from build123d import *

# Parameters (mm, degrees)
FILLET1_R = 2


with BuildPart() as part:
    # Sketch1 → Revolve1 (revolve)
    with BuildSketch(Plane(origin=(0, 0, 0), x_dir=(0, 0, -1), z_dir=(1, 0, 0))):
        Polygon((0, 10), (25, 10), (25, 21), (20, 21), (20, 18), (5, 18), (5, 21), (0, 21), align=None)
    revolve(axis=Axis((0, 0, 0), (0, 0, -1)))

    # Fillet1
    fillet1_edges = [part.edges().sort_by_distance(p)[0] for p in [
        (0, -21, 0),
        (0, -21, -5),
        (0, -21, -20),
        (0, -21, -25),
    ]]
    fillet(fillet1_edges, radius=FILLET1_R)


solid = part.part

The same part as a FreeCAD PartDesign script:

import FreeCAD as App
import Part
import Sketcher

V = App.Vector
Q = App.Units.Quantity


def edges_at(feature, points):
    """Names of the edges that pass closest to the given points."""
    edges = feature.Shape.Edges
    near = lambda p: min(range(len(edges)), key=lambda i: edges[i].distToShape(Part.Vertex(*p))[0])
    return sorted({f"Edge{near(p) + 1}" for p in points})

doc = App.newDocument("Part")
body = doc.addObject("PartDesign::Body", "Body")

# Sketch on YZ plane
sketch1 = doc.addObject("Sketcher::SketchObject", "Sketch")
body.addObject(sketch1)
sketch1.AttachmentSupport = (doc.YZ_Plane, [""])
sketch1.MapMode = "FlatFace"
sketch1.addGeometry(Part.LineSegment(V(10, 0, 0), V(10, -25, 0)), False)
sketch1.addGeometry(Part.LineSegment(V(10, -25, 0), V(21, -25, 0)), False)
sketch1.addGeometry(Part.LineSegment(V(21, -25, 0), V(21, -20, 0)), False)
sketch1.addGeometry(Part.LineSegment(V(21, -20, 0), V(18, -20, 0)), False)
sketch1.addGeometry(Part.LineSegment(V(18, -20, 0), V(18, -5, 0)), False)
sketch1.addGeometry(Part.LineSegment(V(18, -5, 0), V(21, -5, 0)), False)
sketch1.addGeometry(Part.LineSegment(V(21, -5, 0), V(21, 0, 0)), False)
sketch1.addGeometry(Part.LineSegment(V(21, 0, 0), V(10, 0, 0)), False)
sketch1.addConstraint(Sketcher.Constraint("Coincident", 0, 2, 1, 1))
sketch1.addConstraint(Sketcher.Constraint("Coincident", 1, 2, 2, 1))
sketch1.addConstraint(Sketcher.Constraint("Coincident", 2, 2, 3, 1))
sketch1.addConstraint(Sketcher.Constraint("Coincident", 3, 2, 4, 1))
sketch1.addConstraint(Sketcher.Constraint("Coincident", 4, 2, 5, 1))
sketch1.addConstraint(Sketcher.Constraint("Coincident", 5, 2, 6, 1))
sketch1.addConstraint(Sketcher.Constraint("Coincident", 6, 2, 7, 1))
sketch1.addConstraint(Sketcher.Constraint("Coincident", 7, 2, 0, 1))
sketch1.addConstraint(Sketcher.Constraint("Vertical", 0))
sketch1.addConstraint(Sketcher.Constraint("Horizontal", 1))
sketch1.addConstraint(Sketcher.Constraint("Vertical", 2))
sketch1.addConstraint(Sketcher.Constraint("Horizontal", 3))
sketch1.addConstraint(Sketcher.Constraint("Vertical", 4))
sketch1.addConstraint(Sketcher.Constraint("Horizontal", 5))
sketch1.addConstraint(Sketcher.Constraint("Vertical", 6))
sketch1.addConstraint(Sketcher.Constraint("Horizontal", 7))
sketch1.addConstraint(Sketcher.Constraint("PointOnObject", 6, 2, -1))
sketch1.addConstraint(Sketcher.Constraint("Vertical", 2, 2, 5, 2))
sketch1.addConstraint(Sketcher.Constraint("Equal", 2, 6))
sketch1.addConstraint(Sketcher.Constraint("DistanceX", 1, 1, 1, 2, Q("11 mm")))
sketch1.addConstraint(Sketcher.Constraint("DistanceX", 3, 2, 3, 1, Q("3 mm")))
sketch1.addConstraint(Sketcher.Constraint("DistanceY", 0, 2, 0, 1, Q("25 mm")))
sketch1.addConstraint(Sketcher.Constraint("DistanceY", 2, 1, 2, 2, Q("5 mm")))
sketch1.addConstraint(Sketcher.Constraint("DistanceX", -1, 1, 0, 2, Q("10 mm")))
revolution = doc.addObject("PartDesign::Revolution", "Revolution")
body.addObject(revolution)
revolution.Profile = sketch1
revolution.ReferenceAxis = (sketch1, ["V_Axis"])
revolution.Angle = 360
doc.recompute()

fillet = doc.addObject("PartDesign::Fillet", "Fillet")
body.addObject(fillet)
fillet.Base = (revolution, edges_at(revolution, [
    (0, -21, 0),
    (0, -21, -5),
    (0, -21, -20),
    (0, -21, -25),
]))
fillet.Radius = 2

doc.recompute()
